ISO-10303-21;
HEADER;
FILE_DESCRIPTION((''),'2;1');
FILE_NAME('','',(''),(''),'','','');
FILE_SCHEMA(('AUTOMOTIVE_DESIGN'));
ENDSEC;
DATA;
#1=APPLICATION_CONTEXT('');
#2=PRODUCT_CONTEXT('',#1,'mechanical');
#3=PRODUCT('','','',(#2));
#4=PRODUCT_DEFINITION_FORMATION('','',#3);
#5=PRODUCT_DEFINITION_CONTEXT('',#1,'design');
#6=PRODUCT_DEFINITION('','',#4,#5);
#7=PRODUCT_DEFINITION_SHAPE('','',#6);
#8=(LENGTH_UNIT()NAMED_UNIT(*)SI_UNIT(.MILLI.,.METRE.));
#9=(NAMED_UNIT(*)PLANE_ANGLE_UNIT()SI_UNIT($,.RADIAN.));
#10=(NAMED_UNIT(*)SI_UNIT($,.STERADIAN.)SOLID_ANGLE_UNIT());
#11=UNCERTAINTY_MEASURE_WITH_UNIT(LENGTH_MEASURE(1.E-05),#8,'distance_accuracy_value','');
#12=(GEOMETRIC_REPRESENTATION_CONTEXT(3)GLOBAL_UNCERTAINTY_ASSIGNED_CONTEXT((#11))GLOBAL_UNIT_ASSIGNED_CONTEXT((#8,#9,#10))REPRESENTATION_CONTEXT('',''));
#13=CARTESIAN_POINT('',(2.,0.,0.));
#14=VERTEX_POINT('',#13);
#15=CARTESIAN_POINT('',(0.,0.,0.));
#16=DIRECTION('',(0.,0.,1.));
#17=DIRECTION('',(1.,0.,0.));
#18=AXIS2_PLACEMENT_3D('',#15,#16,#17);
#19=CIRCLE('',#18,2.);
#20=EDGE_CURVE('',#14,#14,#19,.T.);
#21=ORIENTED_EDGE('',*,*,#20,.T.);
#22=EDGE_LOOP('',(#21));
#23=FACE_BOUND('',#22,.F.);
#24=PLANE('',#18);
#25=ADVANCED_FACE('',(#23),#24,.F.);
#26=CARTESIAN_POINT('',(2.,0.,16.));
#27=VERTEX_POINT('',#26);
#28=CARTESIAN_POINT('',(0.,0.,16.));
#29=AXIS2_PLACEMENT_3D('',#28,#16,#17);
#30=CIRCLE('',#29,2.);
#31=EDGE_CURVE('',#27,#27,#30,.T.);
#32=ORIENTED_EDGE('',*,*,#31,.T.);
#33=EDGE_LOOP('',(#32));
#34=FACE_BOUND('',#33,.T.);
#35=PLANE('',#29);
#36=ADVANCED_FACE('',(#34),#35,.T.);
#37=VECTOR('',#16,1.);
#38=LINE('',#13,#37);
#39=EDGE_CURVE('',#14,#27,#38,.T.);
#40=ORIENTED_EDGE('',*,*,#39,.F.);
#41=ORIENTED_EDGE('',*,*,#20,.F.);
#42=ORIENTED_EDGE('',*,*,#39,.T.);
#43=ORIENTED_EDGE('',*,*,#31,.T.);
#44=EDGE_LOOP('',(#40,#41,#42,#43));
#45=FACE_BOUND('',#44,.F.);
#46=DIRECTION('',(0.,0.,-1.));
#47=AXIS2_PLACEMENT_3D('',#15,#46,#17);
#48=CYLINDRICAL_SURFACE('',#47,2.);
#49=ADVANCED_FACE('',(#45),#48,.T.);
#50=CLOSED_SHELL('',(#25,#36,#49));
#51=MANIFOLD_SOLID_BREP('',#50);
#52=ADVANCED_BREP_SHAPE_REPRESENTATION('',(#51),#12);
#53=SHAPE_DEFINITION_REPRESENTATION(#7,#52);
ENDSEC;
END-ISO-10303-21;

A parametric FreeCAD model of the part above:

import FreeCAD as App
import Part
import Sketcher

V = App.Vector

doc = App.newDocument("Part")
body = doc.addObject("PartDesign::Body", "Body")

# Sketch on XY plane
sketch1 = doc.addObject("Sketcher::SketchObject", "Sketch")
body.addObject(sketch1)
sketch1.AttachmentSupport = (doc.XY_Plane, [""])
sketch1.MapMode = "FlatFace"
sketch1.addGeometry(Part.Circle(V(0, 0, 0), V(0, 0, 1), 2), False)
sketch1.addConstraint(Sketcher.Constraint("Coincident", 0, 3, -1, 1))
sketch1.addConstraint(Sketcher.Constraint("Diameter", 0, 4.0))
pad1 = doc.addObject("PartDesign::Pad", "Pad")
body.addObject(pad1)
pad1.Profile = sketch1
pad1.Length = 16

doc.recompute()
